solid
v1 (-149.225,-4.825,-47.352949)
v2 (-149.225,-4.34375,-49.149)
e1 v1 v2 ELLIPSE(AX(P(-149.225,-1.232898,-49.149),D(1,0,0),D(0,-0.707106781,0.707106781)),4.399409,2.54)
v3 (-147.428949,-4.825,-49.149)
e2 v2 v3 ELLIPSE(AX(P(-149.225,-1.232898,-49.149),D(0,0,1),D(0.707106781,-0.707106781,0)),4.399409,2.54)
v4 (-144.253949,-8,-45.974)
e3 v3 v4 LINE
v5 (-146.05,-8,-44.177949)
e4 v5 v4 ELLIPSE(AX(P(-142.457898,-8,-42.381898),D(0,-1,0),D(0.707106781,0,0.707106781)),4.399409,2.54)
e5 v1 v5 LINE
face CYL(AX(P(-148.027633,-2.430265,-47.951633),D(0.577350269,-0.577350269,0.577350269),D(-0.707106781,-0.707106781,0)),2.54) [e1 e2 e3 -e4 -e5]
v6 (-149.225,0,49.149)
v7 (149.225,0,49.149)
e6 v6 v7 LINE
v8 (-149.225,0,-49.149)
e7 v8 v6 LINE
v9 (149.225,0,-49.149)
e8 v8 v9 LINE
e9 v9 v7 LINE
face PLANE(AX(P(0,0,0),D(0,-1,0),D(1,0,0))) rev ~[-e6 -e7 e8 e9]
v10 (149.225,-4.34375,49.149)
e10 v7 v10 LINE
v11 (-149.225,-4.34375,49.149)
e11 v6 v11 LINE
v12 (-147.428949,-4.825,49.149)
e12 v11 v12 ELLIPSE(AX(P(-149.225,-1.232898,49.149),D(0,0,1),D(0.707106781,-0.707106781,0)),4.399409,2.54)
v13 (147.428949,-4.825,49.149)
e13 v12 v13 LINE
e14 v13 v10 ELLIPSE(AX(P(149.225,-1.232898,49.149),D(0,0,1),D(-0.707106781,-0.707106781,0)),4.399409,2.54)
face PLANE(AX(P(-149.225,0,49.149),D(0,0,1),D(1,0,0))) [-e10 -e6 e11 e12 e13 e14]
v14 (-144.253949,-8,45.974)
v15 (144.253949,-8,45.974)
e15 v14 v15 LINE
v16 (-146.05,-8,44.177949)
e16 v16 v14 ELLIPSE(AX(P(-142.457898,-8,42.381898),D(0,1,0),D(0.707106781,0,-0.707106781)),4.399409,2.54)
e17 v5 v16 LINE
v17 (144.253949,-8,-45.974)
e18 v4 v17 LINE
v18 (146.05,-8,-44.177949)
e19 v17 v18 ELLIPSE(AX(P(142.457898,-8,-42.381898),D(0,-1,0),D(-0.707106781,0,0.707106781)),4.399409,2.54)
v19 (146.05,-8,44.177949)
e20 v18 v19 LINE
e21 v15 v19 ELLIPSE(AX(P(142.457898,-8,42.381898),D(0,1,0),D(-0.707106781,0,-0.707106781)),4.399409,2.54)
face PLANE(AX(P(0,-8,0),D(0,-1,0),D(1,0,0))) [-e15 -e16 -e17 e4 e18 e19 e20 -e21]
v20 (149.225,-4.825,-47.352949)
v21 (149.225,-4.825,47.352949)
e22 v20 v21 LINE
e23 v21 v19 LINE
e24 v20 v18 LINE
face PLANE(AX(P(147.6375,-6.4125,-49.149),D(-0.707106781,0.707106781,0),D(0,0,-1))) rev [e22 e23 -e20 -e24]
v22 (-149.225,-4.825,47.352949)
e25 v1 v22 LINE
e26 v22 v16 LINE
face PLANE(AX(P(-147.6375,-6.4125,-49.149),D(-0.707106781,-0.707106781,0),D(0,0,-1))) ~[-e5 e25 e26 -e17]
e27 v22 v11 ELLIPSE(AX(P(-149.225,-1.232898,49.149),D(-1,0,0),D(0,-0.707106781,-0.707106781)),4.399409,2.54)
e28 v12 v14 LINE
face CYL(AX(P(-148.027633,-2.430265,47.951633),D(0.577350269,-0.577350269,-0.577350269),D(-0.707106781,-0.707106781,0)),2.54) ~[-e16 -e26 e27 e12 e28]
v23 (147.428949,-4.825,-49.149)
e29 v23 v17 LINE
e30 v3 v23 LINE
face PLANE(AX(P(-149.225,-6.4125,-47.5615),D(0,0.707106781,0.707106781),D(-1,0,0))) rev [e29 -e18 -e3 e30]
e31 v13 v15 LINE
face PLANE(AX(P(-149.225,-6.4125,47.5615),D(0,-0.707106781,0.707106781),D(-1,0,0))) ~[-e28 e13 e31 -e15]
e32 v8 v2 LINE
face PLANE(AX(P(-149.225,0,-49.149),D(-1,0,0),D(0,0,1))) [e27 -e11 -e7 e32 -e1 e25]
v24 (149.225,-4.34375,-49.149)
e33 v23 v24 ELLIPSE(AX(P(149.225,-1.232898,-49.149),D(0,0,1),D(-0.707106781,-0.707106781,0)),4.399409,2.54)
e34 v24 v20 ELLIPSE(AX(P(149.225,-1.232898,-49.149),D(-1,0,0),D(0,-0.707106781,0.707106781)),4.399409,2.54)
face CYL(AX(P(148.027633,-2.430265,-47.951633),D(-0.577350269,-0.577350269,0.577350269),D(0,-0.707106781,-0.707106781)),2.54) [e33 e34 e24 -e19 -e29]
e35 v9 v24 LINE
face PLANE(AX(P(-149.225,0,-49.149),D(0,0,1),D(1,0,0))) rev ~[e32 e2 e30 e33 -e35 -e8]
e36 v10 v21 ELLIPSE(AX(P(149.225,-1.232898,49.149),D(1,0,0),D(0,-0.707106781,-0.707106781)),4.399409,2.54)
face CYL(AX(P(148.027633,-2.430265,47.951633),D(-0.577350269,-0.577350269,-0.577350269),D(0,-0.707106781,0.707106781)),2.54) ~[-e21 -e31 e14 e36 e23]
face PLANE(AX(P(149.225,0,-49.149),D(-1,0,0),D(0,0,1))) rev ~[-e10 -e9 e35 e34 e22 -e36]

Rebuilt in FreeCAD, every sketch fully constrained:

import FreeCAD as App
import Part
import Sketcher

V = App.Vector
Q = App.Units.Quantity


def edges_at(feature, points):
    """Names of the edges that pass closest to the given points."""
    edges = feature.Shape.Edges
    near = lambda p: min(range(len(edges)), key=lambda i: edges[i].distToShape(Part.Vertex(*p))[0])
    return sorted({f"Edge{near(p) + 1}" for p in points})


def add_polygon(sketch, points):
    """Adds a closed chain of lines whose ends are joined by coincident constraints."""
    first, n = sketch.GeometryCount, len(points)
    for a, b in zip(points, points[1:] + points[:1]):
        sketch.addGeometry(Part.LineSegment(App.Vector(*a, 0), App.Vector(*b, 0)), False)
    for i in range(n):
        sketch.addConstraint(Sketcher.Constraint("Coincident", first + i, 2, first + (i + 1) % n, 1))

doc = App.newDocument("Part")
body = doc.addObject("PartDesign::Body", "Body")

sketch1 = body.newObject("Sketcher::SketchObject", "Sketch")
sketch1.AttachmentSupport = (doc.getObject("XZ_Plane"), [""])
sketch1.MapMode = "FlatFace"
add_polygon(sketch1, [(-149, 49), (-149, -49), (149, -49), (149, 49)])
sketch1.addConstraint([
    Sketcher.Constraint("Vertical", 0),
    Sketcher.Constraint("Horizontal", 1),
    Sketcher.Constraint("Vertical", 2),
    Sketcher.Constraint("Horizontal", 3),
    Sketcher.Constraint("Symmetric", 0, 2, 2, 2, -1, 1),
    Sketcher.Constraint("DistanceX", 1, 1, 1, 2, Q("11.75 in")),
    Sketcher.Constraint("DistanceY", 0, 2, 0, 1, Q("3.87 in")),
])
pad1 = body.newObject("PartDesign::Pad", "Pad")
pad1.Profile = sketch1
pad1.Length = 8
doc.recompute()

chamfer = body.newObject("PartDesign::Chamfer", "Chamfer")
chamfer.Base = (pad1, edges_at(pad1, [
    (0, -8, 49.149),
    (-149.225, -8, 0),
    (0, -8, -49.149),
    (149.225, -8, 0),
]))
chamfer.Size = Q("0.125 in")
doc.recompute()

fillet = body.newObject("PartDesign::Fillet", "Fillet")
fillet.Base = (chamfer, edges_at(chamfer, [
    (147.637, -6.412, 47.562),
    (147.637, -6.412, -47.562),
    (-147.637, -6.412, -47.562),
    (-147.637, -6.412, 47.562),
]))
fillet.Radius = Q("0.1 in")

doc.recompute()
